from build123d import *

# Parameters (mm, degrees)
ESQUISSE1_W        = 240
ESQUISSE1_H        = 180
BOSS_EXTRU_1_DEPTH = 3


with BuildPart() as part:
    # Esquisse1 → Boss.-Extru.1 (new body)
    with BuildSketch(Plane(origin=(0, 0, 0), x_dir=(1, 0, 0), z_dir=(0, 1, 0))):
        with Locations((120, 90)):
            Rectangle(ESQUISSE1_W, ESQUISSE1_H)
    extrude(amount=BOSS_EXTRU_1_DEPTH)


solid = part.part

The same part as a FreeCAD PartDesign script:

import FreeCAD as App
import Part
import Sketcher
Q = App.Units.Quantity


def add_polygon(sketch, points):
    """Adds a closed chain of lines whose ends are joined by coincident constraints."""
    first, n = sketch.GeometryCount, len(points)
    for a, b in zip(points, points[1:] + points[:1]):
        sketch.addGeometry(Part.LineSegment(App.Vector(*a, 0), App.Vector(*b, 0)), False)
    for i in range(n):
        sketch.addConstraint(Sketcher.Constraint("Coincident", first + i, 2, first + (i + 1) % n, 1))

doc = App.newDocument("Part")
body = doc.addObject("PartDesign::Body", "Body")

# Sketch on XZ plane
sketch1 = body.newObject("Sketcher::SketchObject", "Sketch")
sketch1.AttachmentSupport = (doc.getObject("XZ_Plane"), [""])
sketch1.MapMode = "FlatFace"
add_polygon(sketch1, [(0, -180), (0, 0), (240, 0), (240, -180)])  # lines 0-3
sketch1.addConstraint(Sketcher.Constraint("Vertical", 0))
sketch1.addConstraint(Sketcher.Constraint("Horizontal", 1))
sketch1.addConstraint(Sketcher.Constraint("Vertical", 2))
sketch1.addConstraint(Sketcher.Constraint("Horizontal", 3))
sketch1.addConstraint(Sketcher.Constraint("Coincident", 0, 2, -1, 1))
sketch1.addConstraint(Sketcher.Constraint("DistanceX", 1, 1, 1, 2, Q("240 mm")))
sketch1.addConstraint(Sketcher.Constraint("DistanceY", 0, 1, 0, 2, Q("180 mm")))
pad1 = body.newObject("PartDesign::Pad", "Pad")
pad1.Profile = sketch1
pad1.Length = 3
pad1.Reversed = True

doc.recompute()
